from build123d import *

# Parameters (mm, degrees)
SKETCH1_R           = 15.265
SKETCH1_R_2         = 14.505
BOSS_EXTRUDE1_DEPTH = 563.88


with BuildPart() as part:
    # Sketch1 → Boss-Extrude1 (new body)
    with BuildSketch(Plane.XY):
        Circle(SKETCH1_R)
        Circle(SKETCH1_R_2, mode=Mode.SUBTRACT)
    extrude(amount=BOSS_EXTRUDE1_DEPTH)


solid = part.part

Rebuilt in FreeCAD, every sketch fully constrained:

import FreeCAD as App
import Part
import Sketcher
from FreeCAD import Vector
Q = App.Units.Quantity

doc = App.newDocument("Part")
body = doc.addObject("PartDesign::Body", "Body")

sketch1 = body.newObject("Sketcher::SketchObject", "Sketch")
sketch1.AttachmentSupport = (doc.getObject("XY_Plane"), [""])
sketch1.MapMode = "FlatFace"
sketch1.addGeometry(Part.Circle(Vector(0, 0, 0), Vector(0, 0, 1), 15), False)
sketch1.addGeometry(Part.Circle(Vector(0, 0, 0), Vector(0, 0, 1), 15), False)
sketch1.addConstraint(Sketcher.Constraint("Coincident", 0, 3, -1, 1))
sketch1.addConstraint(Sketcher.Constraint("Coincident", 1, 3, -1, 1))
sketch1.addConstraint(Sketcher.Constraint("Diameter", 0, Q("30.53 mm")))
sketch1.addConstraint(Sketcher.Constraint("Diameter", 1, Q("29.01 mm")))
pad1 = body.newObject("PartDesign::Pad", "Pad")
pad1.Profile = sketch1
pad1.Length = Q("22.2 in")

doc.recompute()
